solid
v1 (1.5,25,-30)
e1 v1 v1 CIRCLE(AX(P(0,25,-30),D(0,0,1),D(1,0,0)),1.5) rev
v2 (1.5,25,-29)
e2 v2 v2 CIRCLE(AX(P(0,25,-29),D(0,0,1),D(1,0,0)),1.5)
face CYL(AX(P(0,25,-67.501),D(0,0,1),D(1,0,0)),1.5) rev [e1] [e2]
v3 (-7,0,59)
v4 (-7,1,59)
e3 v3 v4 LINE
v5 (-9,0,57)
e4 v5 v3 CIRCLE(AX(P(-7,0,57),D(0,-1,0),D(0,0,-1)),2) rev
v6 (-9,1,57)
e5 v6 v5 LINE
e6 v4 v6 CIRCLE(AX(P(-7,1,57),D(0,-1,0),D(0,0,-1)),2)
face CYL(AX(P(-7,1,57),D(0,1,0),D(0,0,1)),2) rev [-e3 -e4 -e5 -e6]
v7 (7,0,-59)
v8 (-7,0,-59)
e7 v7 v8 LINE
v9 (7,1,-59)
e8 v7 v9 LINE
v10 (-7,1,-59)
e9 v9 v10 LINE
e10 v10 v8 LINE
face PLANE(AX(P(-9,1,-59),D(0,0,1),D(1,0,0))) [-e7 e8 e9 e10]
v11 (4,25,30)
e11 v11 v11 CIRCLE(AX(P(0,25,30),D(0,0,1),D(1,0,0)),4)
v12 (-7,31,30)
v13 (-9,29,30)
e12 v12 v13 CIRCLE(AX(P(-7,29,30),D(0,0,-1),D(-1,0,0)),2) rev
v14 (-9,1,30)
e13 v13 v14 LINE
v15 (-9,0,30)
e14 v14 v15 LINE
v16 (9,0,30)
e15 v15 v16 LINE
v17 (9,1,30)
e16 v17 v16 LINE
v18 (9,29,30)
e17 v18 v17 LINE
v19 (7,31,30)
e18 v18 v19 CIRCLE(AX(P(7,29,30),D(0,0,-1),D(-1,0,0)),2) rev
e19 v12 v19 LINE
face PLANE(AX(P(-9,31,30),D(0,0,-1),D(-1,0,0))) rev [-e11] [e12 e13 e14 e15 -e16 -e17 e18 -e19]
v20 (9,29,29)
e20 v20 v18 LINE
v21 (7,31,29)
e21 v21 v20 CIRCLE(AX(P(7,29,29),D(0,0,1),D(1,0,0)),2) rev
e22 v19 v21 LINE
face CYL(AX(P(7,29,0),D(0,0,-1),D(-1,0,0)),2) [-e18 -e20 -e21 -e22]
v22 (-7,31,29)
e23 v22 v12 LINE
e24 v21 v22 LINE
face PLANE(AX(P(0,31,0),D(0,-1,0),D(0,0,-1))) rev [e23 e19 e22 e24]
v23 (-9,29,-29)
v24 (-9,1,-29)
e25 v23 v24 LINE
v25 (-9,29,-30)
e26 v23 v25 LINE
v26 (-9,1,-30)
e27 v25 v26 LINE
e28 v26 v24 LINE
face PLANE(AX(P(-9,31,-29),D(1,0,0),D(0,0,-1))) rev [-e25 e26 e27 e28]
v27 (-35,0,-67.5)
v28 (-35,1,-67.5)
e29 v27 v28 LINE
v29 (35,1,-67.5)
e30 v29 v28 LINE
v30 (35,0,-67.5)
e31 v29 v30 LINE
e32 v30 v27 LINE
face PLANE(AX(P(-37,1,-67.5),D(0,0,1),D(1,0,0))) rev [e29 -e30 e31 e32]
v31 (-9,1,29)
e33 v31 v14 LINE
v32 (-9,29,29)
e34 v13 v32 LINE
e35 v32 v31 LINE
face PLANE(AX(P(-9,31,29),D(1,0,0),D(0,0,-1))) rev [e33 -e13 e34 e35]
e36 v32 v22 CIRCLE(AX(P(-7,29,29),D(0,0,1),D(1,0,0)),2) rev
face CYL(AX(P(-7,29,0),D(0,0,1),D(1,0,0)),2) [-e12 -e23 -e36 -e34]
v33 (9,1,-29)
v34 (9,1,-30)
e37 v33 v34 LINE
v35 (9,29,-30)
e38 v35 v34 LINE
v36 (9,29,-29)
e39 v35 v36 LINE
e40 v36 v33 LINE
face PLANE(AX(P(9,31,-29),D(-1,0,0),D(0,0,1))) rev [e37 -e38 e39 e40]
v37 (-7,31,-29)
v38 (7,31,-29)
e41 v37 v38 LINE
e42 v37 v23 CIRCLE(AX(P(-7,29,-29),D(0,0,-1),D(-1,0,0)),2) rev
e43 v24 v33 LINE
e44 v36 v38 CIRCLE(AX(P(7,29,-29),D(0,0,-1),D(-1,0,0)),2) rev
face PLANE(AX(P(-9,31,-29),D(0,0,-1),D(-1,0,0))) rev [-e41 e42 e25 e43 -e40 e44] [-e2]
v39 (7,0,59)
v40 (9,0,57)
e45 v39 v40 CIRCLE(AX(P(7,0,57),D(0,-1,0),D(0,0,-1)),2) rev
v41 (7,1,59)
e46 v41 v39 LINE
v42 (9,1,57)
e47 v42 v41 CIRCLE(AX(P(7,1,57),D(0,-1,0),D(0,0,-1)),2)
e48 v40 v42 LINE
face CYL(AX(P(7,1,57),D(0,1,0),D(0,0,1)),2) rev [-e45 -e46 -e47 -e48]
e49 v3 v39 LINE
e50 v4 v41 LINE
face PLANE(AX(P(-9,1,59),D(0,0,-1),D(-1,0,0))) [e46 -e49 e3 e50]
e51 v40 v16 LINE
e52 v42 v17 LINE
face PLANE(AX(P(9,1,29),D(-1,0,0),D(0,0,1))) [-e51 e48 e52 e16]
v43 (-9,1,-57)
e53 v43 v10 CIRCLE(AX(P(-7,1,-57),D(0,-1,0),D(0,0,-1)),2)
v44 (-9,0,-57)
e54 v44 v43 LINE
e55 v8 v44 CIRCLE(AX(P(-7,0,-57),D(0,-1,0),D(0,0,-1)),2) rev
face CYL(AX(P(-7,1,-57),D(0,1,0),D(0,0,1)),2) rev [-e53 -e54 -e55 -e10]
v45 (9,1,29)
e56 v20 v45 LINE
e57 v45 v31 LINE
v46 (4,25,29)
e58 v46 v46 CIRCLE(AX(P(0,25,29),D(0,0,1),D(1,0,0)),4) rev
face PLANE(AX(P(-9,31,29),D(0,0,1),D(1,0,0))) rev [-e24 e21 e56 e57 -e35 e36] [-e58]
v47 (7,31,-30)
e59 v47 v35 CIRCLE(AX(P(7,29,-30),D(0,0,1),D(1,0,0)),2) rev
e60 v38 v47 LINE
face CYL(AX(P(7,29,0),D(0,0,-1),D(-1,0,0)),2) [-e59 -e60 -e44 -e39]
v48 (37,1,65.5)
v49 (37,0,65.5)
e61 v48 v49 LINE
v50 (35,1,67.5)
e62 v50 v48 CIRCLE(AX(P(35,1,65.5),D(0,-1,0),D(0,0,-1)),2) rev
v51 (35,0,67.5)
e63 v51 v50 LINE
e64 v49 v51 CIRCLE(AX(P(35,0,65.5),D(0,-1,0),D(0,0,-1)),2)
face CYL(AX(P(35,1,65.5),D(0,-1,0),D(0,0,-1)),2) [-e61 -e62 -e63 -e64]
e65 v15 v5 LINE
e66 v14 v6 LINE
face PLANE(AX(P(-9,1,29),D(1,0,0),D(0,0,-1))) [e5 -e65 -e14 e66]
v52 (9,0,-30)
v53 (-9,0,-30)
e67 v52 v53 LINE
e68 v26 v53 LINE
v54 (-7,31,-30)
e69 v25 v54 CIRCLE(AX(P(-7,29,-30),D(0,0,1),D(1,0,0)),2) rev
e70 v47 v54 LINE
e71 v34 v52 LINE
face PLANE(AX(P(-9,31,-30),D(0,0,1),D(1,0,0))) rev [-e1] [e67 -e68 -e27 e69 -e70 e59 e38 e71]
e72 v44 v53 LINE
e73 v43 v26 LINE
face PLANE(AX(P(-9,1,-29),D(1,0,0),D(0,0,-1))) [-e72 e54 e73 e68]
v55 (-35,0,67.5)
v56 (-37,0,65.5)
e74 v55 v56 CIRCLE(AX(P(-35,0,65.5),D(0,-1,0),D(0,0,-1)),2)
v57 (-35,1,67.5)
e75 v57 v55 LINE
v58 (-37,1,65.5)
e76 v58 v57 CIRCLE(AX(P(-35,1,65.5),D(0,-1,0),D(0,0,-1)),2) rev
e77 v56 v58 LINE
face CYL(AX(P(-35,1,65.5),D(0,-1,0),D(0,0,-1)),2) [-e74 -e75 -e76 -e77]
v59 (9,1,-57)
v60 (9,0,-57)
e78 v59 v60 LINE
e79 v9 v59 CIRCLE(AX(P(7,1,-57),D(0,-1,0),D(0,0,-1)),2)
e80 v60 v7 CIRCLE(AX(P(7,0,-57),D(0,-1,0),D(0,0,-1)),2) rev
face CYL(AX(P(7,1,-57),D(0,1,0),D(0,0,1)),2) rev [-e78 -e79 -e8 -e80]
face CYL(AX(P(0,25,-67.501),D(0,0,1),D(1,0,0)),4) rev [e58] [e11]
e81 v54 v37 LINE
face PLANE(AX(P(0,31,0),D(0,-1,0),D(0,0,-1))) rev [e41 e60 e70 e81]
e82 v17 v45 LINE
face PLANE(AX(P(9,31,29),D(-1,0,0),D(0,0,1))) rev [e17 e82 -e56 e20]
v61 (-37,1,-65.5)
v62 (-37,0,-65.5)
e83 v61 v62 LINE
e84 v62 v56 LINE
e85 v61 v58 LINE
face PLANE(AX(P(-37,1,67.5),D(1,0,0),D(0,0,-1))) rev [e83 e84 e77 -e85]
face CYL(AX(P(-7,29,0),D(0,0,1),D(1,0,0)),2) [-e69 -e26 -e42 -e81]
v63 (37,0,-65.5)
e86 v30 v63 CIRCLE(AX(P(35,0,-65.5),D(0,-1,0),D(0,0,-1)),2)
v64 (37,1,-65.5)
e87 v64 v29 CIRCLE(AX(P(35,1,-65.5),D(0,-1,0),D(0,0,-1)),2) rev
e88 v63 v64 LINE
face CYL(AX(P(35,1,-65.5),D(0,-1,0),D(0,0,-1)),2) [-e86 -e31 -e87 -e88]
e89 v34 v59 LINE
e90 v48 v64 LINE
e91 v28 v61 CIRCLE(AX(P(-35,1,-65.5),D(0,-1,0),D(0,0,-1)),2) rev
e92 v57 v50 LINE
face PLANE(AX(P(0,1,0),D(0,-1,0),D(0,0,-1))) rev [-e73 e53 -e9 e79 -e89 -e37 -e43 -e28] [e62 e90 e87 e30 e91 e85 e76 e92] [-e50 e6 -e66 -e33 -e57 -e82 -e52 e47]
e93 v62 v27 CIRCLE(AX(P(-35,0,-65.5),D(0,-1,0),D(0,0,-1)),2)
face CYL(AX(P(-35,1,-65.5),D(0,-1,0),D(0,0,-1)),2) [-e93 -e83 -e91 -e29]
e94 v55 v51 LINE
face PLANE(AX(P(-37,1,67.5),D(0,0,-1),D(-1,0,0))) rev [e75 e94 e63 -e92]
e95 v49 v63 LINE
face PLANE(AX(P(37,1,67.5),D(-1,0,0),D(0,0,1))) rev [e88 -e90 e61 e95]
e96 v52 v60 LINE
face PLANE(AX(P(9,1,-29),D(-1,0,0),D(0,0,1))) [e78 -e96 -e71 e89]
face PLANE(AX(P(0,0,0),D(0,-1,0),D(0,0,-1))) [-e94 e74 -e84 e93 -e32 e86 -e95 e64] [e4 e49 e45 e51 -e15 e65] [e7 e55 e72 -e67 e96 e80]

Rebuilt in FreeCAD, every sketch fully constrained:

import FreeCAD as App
import Part
import Sketcher
from FreeCAD import Vector


def edges_at(feature, points):
    """Names of the edges that pass closest to the given points."""
    edges = feature.Shape.Edges
    near = lambda p: min(range(len(edges)), key=lambda i: edges[i].distToShape(Part.Vertex(*p))[0])
    return sorted({f"Edge{near(p) + 1}" for p in points})

doc = App.newDocument("Part")
body = doc.addObject("PartDesign::Body", "Body")

# Sketch on XZ plane
sketch1 = doc.addObject("Sketcher::SketchObject", "Sketch")
body.addObject(sketch1)
sketch1.AttachmentSupport = (doc.XZ_Plane, [""])
sketch1.MapMode = "FlatFace"
sketch1.addGeometry(Part.LineSegment(Vector(-37, -68, 0), Vector(-37, 68, 0)), False)
sketch1.addGeometry(Part.LineSegment(Vector(-37, 68, 0), Vector(37, 68, 0)), False)
sketch1.addGeometry(Part.LineSegment(Vector(37, 68, 0), Vector(37, -68, 0)), False)
sketch1.addGeometry(Part.LineSegment(Vector(37, -68, 0), Vector(-37, -68, 0)), False)
sketch1.addGeometry(Part.LineSegment(Vector(9, 59, 0), Vector(-9, 59, 0)), False)
sketch1.addGeometry(Part.LineSegment(Vector(-9, 59, 0), Vector(-9, 29, 0)), False)
sketch1.addGeometry(Part.LineSegment(Vector(-9, 29, 0), Vector(9, 29, 0)), False)
sketch1.addGeometry(Part.LineSegment(Vector(9, 29, 0), Vector(9, 59, 0)), False)
sketch1.addGeometry(Part.LineSegment(Vector(9, -29, 0), Vector(-9, -29, 0)), False)
sketch1.addGeometry(Part.LineSegment(Vector(-9, -29, 0), Vector(-9, -59, 0)), False)
sketch1.addGeometry(Part.LineSegment(Vector(-9, -59, 0), Vector(9, -59, 0)), False)
sketch1.addGeometry(Part.LineSegment(Vector(9, -59, 0), Vector(9, -29, 0)), False)
sketch1.addConstraint(Sketcher.Constraint("Coincident", 0, 2, 1, 1))
sketch1.addConstraint(Sketcher.Constraint("Coincident", 1, 2, 2, 1))
sketch1.addConstraint(Sketcher.Constraint("Coincident", 2, 2, 3, 1))
sketch1.addConstraint(Sketcher.Constraint("Coincident", 3, 2, 0, 1))
sketch1.addConstraint(Sketcher.Constraint("Coincident", 4, 2, 5, 1))
sketch1.addConstraint(Sketcher.Constraint("Coincident", 5, 2, 6, 1))
sketch1.addConstraint(Sketcher.Constraint("Coincident", 6, 2, 7, 1))
sketch1.addConstraint(Sketcher.Constraint("Coincident", 7, 2, 4, 1))
sketch1.addConstraint(Sketcher.Constraint("Coincident", 8, 2, 9, 1))
sketch1.addConstraint(Sketcher.Constraint("Coincident", 9, 2, 10, 1))
sketch1.addConstraint(Sketcher.Constraint("Coincident", 10, 2, 11, 1))
sketch1.addConstraint(Sketcher.Constraint("Coincident", 11, 2, 8, 1))
sketch1.addConstraint(Sketcher.Constraint("Vertical", 0))
sketch1.addConstraint(Sketcher.Constraint("Horizontal", 1))
sketch1.addConstraint(Sketcher.Constraint("Vertical", 2))
sketch1.addConstraint(Sketcher.Constraint("Horizontal", 3))
sketch1.addConstraint(Sketcher.Constraint("Horizontal", 4))
sketch1.addConstraint(Sketcher.Constraint("Vertical", 5))
sketch1.addConstraint(Sketcher.Constraint("Horizontal", 6))
sketch1.addConstraint(Sketcher.Constraint("Vertical", 7))
sketch1.addConstraint(Sketcher.Constraint("Horizontal", 8))
sketch1.addConstraint(Sketcher.Constraint("Vertical", 9))
sketch1.addConstraint(Sketcher.Constraint("Horizontal", 10))
sketch1.addConstraint(Sketcher.Constraint("Vertical", 11))
sketch1.addConstraint(Sketcher.Constraint("Symmetric", 0, 2, 2, 2, -1, 1))
sketch1.addConstraint(Sketcher.Constraint("Symmetric", 6, 2, 8, 2, -1, 1))
sketch1.addConstraint(Sketcher.Constraint("Symmetric", 4, 2, 10, 2, -1, 1))
sketch1.addConstraint(Sketcher.Constraint("Vertical", 5, 2, 8, 2))
sketch1.addConstraint(Sketcher.Constraint("DistanceX", 1, 1, 1, 2, 74.0))
sketch1.addConstraint(Sketcher.Constraint("DistanceX", 4, 2, 4, 1, 18.0))
sketch1.addConstraint(Sketcher.Constraint("DistanceY", 0, 1, 0, 2, 135.0))
sketch1.addConstraint(Sketcher.Constraint("DistanceY", 5, 2, 5, 1, 30.0))
sketch1.addConstraint(Sketcher.Constraint("DistanceY", -1, 1, 4, 2, 59.0))
pad1 = doc.addObject("PartDesign::Pad", "Pad")
body.addObject(pad1)
pad1.Profile = sketch1
pad1.Length = 1
pad1.Reversed = True

# Sketch on XZ plane
sketch2 = doc.addObject("Sketcher::SketchObject", "Sketch001")
body.addObject(sketch2)
sketch2.AttachmentSupport = (doc.XZ_Plane, [""])
sketch2.MapMode = "FlatFace"
sketch2.addGeometry(Part.LineSegment(Vector(-9, -30, 0), Vector(-9, -29, 0)), False)
sketch2.addGeometry(Part.LineSegment(Vector(-9, -29, 0), Vector(9, -29, 0)), False)
sketch2.addGeometry(Part.LineSegment(Vector(9, -29, 0), Vector(9, -30, 0)), False)
sketch2.addGeometry(Part.LineSegment(Vector(9, -30, 0), Vector(-9, -30, 0)), False)
sketch2.addGeometry(Part.LineSegment(Vector(-9, 29, 0), Vector(-9, 30, 0)), False)
sketch2.addGeometry(Part.LineSegment(Vector(-9, 30, 0), Vector(9, 30, 0)), False)
sketch2.addGeometry(Part.LineSegment(Vector(9, 30, 0), Vector(9, 29, 0)), False)
sketch2.addGeometry(Part.LineSegment(Vector(9, 29, 0), Vector(-9, 29, 0)), False)
sketch2.addConstraint(Sketcher.Constraint("Coincident", 0, 2, 1, 1))
sketch2.addConstraint(Sketcher.Constraint("Coincident", 1, 2, 2, 1))
sketch2.addConstraint(Sketcher.Constraint("Coincident", 2, 2, 3, 1))
sketch2.addConstraint(Sketcher.Constraint("Coincident", 3, 2, 0, 1))
sketch2.addConstraint(Sketcher.Constraint("Coincident", 4, 2, 5, 1))
sketch2.addConstraint(Sketcher.Constraint("Coincident", 5, 2, 6, 1))
sketch2.addConstraint(Sketcher.Constraint("Coincident", 6, 2, 7, 1))
sketch2.addConstraint(Sketcher.Constraint("Coincident", 7, 2, 4, 1))
sketch2.addConstraint(Sketcher.Constraint("Vertical", 0))
sketch2.addConstraint(Sketcher.Constraint("Horizontal", 1))
sketch2.addConstraint(Sketcher.Constraint("Vertical", 2))
sketch2.addConstraint(Sketcher.Constraint("Horizontal", 3))
sketch2.addConstraint(Sketcher.Constraint("Vertical", 4))
sketch2.addConstraint(Sketcher.Constraint("Horizontal", 5))
sketch2.addConstraint(Sketcher.Constraint("Vertical", 6))
sketch2.addConstraint(Sketcher.Constraint("Horizontal", 7))
sketch2.addConstraint(Sketcher.Constraint("Symmetric", 2, 2, 4, 2, -1, 1))
sketch2.addConstraint(Sketcher.Constraint("Symmetric", 0, 2, 6, 2, -1, 1))
sketch2.addConstraint(Sketcher.Constraint("Vertical", 3, 2, 4, 2))
sketch2.addConstraint(Sketcher.Constraint("DistanceX", 1, 1, 1, 2, 18.0))
sketch2.addConstraint(Sketcher.Constraint("DistanceY", 0, 1, 0, 2, 1.0))
sketch2.addConstraint(Sketcher.Constraint("DistanceY", 0, 2, -1, 1, 29.0))
pad2 = doc.addObject("PartDesign::Pad", "Pad001")
body.addObject(pad2)
pad2.Profile = sketch2
pad2.Length = 31
pad2.Reversed = True

# Sketch on XY plane
sketch3 = doc.addObject("Sketcher::SketchObject", "Sketch002")
body.addObject(sketch3)
sketch3.AttachmentSupport = (doc.XY_Plane, [""])
sketch3.MapMode = "FlatFace"
sketch3.AttachmentOffset = App.Placement(Vector(0, 0, 30), App.Rotation())
sketch3.addGeometry(Part.Circle(Vector(0, 25, 0), Vector(0, 0, 1), 4), False)
sketch3.addConstraint(Sketcher.Constraint("PointOnObject", 0, 3, -2))
sketch3.addConstraint(Sketcher.Constraint("Diameter", 0, 8.0))
sketch3.addConstraint(Sketcher.Constraint("DistanceY", -1, 1, 0, 3, 25.0))
pocket1 = doc.addObject("PartDesign::Pocket", "Pocket")
body.addObject(pocket1)
pocket1.Profile = sketch3
pocket1.Type = "UpToFirst"

# Sketch on XY plane
sketch4 = doc.addObject("Sketcher::SketchObject", "Sketch003")
body.addObject(sketch4)
sketch4.AttachmentSupport = (doc.XY_Plane, [""])
sketch4.MapMode = "FlatFace"
sketch4.AttachmentOffset = App.Placement(Vector(0, 0, -29), App.Rotation())
sketch4.addGeometry(Part.Circle(Vector(0, 25, 0), Vector(0, 0, 1), 1.5), False)
sketch4.addConstraint(Sketcher.Constraint("PointOnObject", 0, 3, -2))
sketch4.addConstraint(Sketcher.Constraint("Diameter", 0, 3.0))
sketch4.addConstraint(Sketcher.Constraint("DistanceY", -1, 1, 0, 3, 25.0))
pocket2 = doc.addObject("PartDesign::Pocket", "Pocket001")
body.addObject(pocket2)
pocket2.Profile = sketch4
pocket2.Type = "UpToFirst"
doc.recompute()

fillet = doc.addObject("PartDesign::Fillet", "Fillet")
body.addObject(fillet)
fillet.Base = (pocket2, edges_at(pocket2, [
    (9, 0.5, -59),
    (-9, 0.5, -59),
    (-9, 0.5, 59),
    (9, 0.5, 59),
    (-9, 31, -29.5),
    (9, 31, -29.5),
    (-9, 31, 29.5),
    (9, 31, 29.5),
    (37, 0.5, 67.5),
    (-37, 0.5, 67.5),
    (-37, 0.5, -67.5),
    (37, 0.5, -67.5),
]))
fillet.Radius = 2

doc.recompute()
